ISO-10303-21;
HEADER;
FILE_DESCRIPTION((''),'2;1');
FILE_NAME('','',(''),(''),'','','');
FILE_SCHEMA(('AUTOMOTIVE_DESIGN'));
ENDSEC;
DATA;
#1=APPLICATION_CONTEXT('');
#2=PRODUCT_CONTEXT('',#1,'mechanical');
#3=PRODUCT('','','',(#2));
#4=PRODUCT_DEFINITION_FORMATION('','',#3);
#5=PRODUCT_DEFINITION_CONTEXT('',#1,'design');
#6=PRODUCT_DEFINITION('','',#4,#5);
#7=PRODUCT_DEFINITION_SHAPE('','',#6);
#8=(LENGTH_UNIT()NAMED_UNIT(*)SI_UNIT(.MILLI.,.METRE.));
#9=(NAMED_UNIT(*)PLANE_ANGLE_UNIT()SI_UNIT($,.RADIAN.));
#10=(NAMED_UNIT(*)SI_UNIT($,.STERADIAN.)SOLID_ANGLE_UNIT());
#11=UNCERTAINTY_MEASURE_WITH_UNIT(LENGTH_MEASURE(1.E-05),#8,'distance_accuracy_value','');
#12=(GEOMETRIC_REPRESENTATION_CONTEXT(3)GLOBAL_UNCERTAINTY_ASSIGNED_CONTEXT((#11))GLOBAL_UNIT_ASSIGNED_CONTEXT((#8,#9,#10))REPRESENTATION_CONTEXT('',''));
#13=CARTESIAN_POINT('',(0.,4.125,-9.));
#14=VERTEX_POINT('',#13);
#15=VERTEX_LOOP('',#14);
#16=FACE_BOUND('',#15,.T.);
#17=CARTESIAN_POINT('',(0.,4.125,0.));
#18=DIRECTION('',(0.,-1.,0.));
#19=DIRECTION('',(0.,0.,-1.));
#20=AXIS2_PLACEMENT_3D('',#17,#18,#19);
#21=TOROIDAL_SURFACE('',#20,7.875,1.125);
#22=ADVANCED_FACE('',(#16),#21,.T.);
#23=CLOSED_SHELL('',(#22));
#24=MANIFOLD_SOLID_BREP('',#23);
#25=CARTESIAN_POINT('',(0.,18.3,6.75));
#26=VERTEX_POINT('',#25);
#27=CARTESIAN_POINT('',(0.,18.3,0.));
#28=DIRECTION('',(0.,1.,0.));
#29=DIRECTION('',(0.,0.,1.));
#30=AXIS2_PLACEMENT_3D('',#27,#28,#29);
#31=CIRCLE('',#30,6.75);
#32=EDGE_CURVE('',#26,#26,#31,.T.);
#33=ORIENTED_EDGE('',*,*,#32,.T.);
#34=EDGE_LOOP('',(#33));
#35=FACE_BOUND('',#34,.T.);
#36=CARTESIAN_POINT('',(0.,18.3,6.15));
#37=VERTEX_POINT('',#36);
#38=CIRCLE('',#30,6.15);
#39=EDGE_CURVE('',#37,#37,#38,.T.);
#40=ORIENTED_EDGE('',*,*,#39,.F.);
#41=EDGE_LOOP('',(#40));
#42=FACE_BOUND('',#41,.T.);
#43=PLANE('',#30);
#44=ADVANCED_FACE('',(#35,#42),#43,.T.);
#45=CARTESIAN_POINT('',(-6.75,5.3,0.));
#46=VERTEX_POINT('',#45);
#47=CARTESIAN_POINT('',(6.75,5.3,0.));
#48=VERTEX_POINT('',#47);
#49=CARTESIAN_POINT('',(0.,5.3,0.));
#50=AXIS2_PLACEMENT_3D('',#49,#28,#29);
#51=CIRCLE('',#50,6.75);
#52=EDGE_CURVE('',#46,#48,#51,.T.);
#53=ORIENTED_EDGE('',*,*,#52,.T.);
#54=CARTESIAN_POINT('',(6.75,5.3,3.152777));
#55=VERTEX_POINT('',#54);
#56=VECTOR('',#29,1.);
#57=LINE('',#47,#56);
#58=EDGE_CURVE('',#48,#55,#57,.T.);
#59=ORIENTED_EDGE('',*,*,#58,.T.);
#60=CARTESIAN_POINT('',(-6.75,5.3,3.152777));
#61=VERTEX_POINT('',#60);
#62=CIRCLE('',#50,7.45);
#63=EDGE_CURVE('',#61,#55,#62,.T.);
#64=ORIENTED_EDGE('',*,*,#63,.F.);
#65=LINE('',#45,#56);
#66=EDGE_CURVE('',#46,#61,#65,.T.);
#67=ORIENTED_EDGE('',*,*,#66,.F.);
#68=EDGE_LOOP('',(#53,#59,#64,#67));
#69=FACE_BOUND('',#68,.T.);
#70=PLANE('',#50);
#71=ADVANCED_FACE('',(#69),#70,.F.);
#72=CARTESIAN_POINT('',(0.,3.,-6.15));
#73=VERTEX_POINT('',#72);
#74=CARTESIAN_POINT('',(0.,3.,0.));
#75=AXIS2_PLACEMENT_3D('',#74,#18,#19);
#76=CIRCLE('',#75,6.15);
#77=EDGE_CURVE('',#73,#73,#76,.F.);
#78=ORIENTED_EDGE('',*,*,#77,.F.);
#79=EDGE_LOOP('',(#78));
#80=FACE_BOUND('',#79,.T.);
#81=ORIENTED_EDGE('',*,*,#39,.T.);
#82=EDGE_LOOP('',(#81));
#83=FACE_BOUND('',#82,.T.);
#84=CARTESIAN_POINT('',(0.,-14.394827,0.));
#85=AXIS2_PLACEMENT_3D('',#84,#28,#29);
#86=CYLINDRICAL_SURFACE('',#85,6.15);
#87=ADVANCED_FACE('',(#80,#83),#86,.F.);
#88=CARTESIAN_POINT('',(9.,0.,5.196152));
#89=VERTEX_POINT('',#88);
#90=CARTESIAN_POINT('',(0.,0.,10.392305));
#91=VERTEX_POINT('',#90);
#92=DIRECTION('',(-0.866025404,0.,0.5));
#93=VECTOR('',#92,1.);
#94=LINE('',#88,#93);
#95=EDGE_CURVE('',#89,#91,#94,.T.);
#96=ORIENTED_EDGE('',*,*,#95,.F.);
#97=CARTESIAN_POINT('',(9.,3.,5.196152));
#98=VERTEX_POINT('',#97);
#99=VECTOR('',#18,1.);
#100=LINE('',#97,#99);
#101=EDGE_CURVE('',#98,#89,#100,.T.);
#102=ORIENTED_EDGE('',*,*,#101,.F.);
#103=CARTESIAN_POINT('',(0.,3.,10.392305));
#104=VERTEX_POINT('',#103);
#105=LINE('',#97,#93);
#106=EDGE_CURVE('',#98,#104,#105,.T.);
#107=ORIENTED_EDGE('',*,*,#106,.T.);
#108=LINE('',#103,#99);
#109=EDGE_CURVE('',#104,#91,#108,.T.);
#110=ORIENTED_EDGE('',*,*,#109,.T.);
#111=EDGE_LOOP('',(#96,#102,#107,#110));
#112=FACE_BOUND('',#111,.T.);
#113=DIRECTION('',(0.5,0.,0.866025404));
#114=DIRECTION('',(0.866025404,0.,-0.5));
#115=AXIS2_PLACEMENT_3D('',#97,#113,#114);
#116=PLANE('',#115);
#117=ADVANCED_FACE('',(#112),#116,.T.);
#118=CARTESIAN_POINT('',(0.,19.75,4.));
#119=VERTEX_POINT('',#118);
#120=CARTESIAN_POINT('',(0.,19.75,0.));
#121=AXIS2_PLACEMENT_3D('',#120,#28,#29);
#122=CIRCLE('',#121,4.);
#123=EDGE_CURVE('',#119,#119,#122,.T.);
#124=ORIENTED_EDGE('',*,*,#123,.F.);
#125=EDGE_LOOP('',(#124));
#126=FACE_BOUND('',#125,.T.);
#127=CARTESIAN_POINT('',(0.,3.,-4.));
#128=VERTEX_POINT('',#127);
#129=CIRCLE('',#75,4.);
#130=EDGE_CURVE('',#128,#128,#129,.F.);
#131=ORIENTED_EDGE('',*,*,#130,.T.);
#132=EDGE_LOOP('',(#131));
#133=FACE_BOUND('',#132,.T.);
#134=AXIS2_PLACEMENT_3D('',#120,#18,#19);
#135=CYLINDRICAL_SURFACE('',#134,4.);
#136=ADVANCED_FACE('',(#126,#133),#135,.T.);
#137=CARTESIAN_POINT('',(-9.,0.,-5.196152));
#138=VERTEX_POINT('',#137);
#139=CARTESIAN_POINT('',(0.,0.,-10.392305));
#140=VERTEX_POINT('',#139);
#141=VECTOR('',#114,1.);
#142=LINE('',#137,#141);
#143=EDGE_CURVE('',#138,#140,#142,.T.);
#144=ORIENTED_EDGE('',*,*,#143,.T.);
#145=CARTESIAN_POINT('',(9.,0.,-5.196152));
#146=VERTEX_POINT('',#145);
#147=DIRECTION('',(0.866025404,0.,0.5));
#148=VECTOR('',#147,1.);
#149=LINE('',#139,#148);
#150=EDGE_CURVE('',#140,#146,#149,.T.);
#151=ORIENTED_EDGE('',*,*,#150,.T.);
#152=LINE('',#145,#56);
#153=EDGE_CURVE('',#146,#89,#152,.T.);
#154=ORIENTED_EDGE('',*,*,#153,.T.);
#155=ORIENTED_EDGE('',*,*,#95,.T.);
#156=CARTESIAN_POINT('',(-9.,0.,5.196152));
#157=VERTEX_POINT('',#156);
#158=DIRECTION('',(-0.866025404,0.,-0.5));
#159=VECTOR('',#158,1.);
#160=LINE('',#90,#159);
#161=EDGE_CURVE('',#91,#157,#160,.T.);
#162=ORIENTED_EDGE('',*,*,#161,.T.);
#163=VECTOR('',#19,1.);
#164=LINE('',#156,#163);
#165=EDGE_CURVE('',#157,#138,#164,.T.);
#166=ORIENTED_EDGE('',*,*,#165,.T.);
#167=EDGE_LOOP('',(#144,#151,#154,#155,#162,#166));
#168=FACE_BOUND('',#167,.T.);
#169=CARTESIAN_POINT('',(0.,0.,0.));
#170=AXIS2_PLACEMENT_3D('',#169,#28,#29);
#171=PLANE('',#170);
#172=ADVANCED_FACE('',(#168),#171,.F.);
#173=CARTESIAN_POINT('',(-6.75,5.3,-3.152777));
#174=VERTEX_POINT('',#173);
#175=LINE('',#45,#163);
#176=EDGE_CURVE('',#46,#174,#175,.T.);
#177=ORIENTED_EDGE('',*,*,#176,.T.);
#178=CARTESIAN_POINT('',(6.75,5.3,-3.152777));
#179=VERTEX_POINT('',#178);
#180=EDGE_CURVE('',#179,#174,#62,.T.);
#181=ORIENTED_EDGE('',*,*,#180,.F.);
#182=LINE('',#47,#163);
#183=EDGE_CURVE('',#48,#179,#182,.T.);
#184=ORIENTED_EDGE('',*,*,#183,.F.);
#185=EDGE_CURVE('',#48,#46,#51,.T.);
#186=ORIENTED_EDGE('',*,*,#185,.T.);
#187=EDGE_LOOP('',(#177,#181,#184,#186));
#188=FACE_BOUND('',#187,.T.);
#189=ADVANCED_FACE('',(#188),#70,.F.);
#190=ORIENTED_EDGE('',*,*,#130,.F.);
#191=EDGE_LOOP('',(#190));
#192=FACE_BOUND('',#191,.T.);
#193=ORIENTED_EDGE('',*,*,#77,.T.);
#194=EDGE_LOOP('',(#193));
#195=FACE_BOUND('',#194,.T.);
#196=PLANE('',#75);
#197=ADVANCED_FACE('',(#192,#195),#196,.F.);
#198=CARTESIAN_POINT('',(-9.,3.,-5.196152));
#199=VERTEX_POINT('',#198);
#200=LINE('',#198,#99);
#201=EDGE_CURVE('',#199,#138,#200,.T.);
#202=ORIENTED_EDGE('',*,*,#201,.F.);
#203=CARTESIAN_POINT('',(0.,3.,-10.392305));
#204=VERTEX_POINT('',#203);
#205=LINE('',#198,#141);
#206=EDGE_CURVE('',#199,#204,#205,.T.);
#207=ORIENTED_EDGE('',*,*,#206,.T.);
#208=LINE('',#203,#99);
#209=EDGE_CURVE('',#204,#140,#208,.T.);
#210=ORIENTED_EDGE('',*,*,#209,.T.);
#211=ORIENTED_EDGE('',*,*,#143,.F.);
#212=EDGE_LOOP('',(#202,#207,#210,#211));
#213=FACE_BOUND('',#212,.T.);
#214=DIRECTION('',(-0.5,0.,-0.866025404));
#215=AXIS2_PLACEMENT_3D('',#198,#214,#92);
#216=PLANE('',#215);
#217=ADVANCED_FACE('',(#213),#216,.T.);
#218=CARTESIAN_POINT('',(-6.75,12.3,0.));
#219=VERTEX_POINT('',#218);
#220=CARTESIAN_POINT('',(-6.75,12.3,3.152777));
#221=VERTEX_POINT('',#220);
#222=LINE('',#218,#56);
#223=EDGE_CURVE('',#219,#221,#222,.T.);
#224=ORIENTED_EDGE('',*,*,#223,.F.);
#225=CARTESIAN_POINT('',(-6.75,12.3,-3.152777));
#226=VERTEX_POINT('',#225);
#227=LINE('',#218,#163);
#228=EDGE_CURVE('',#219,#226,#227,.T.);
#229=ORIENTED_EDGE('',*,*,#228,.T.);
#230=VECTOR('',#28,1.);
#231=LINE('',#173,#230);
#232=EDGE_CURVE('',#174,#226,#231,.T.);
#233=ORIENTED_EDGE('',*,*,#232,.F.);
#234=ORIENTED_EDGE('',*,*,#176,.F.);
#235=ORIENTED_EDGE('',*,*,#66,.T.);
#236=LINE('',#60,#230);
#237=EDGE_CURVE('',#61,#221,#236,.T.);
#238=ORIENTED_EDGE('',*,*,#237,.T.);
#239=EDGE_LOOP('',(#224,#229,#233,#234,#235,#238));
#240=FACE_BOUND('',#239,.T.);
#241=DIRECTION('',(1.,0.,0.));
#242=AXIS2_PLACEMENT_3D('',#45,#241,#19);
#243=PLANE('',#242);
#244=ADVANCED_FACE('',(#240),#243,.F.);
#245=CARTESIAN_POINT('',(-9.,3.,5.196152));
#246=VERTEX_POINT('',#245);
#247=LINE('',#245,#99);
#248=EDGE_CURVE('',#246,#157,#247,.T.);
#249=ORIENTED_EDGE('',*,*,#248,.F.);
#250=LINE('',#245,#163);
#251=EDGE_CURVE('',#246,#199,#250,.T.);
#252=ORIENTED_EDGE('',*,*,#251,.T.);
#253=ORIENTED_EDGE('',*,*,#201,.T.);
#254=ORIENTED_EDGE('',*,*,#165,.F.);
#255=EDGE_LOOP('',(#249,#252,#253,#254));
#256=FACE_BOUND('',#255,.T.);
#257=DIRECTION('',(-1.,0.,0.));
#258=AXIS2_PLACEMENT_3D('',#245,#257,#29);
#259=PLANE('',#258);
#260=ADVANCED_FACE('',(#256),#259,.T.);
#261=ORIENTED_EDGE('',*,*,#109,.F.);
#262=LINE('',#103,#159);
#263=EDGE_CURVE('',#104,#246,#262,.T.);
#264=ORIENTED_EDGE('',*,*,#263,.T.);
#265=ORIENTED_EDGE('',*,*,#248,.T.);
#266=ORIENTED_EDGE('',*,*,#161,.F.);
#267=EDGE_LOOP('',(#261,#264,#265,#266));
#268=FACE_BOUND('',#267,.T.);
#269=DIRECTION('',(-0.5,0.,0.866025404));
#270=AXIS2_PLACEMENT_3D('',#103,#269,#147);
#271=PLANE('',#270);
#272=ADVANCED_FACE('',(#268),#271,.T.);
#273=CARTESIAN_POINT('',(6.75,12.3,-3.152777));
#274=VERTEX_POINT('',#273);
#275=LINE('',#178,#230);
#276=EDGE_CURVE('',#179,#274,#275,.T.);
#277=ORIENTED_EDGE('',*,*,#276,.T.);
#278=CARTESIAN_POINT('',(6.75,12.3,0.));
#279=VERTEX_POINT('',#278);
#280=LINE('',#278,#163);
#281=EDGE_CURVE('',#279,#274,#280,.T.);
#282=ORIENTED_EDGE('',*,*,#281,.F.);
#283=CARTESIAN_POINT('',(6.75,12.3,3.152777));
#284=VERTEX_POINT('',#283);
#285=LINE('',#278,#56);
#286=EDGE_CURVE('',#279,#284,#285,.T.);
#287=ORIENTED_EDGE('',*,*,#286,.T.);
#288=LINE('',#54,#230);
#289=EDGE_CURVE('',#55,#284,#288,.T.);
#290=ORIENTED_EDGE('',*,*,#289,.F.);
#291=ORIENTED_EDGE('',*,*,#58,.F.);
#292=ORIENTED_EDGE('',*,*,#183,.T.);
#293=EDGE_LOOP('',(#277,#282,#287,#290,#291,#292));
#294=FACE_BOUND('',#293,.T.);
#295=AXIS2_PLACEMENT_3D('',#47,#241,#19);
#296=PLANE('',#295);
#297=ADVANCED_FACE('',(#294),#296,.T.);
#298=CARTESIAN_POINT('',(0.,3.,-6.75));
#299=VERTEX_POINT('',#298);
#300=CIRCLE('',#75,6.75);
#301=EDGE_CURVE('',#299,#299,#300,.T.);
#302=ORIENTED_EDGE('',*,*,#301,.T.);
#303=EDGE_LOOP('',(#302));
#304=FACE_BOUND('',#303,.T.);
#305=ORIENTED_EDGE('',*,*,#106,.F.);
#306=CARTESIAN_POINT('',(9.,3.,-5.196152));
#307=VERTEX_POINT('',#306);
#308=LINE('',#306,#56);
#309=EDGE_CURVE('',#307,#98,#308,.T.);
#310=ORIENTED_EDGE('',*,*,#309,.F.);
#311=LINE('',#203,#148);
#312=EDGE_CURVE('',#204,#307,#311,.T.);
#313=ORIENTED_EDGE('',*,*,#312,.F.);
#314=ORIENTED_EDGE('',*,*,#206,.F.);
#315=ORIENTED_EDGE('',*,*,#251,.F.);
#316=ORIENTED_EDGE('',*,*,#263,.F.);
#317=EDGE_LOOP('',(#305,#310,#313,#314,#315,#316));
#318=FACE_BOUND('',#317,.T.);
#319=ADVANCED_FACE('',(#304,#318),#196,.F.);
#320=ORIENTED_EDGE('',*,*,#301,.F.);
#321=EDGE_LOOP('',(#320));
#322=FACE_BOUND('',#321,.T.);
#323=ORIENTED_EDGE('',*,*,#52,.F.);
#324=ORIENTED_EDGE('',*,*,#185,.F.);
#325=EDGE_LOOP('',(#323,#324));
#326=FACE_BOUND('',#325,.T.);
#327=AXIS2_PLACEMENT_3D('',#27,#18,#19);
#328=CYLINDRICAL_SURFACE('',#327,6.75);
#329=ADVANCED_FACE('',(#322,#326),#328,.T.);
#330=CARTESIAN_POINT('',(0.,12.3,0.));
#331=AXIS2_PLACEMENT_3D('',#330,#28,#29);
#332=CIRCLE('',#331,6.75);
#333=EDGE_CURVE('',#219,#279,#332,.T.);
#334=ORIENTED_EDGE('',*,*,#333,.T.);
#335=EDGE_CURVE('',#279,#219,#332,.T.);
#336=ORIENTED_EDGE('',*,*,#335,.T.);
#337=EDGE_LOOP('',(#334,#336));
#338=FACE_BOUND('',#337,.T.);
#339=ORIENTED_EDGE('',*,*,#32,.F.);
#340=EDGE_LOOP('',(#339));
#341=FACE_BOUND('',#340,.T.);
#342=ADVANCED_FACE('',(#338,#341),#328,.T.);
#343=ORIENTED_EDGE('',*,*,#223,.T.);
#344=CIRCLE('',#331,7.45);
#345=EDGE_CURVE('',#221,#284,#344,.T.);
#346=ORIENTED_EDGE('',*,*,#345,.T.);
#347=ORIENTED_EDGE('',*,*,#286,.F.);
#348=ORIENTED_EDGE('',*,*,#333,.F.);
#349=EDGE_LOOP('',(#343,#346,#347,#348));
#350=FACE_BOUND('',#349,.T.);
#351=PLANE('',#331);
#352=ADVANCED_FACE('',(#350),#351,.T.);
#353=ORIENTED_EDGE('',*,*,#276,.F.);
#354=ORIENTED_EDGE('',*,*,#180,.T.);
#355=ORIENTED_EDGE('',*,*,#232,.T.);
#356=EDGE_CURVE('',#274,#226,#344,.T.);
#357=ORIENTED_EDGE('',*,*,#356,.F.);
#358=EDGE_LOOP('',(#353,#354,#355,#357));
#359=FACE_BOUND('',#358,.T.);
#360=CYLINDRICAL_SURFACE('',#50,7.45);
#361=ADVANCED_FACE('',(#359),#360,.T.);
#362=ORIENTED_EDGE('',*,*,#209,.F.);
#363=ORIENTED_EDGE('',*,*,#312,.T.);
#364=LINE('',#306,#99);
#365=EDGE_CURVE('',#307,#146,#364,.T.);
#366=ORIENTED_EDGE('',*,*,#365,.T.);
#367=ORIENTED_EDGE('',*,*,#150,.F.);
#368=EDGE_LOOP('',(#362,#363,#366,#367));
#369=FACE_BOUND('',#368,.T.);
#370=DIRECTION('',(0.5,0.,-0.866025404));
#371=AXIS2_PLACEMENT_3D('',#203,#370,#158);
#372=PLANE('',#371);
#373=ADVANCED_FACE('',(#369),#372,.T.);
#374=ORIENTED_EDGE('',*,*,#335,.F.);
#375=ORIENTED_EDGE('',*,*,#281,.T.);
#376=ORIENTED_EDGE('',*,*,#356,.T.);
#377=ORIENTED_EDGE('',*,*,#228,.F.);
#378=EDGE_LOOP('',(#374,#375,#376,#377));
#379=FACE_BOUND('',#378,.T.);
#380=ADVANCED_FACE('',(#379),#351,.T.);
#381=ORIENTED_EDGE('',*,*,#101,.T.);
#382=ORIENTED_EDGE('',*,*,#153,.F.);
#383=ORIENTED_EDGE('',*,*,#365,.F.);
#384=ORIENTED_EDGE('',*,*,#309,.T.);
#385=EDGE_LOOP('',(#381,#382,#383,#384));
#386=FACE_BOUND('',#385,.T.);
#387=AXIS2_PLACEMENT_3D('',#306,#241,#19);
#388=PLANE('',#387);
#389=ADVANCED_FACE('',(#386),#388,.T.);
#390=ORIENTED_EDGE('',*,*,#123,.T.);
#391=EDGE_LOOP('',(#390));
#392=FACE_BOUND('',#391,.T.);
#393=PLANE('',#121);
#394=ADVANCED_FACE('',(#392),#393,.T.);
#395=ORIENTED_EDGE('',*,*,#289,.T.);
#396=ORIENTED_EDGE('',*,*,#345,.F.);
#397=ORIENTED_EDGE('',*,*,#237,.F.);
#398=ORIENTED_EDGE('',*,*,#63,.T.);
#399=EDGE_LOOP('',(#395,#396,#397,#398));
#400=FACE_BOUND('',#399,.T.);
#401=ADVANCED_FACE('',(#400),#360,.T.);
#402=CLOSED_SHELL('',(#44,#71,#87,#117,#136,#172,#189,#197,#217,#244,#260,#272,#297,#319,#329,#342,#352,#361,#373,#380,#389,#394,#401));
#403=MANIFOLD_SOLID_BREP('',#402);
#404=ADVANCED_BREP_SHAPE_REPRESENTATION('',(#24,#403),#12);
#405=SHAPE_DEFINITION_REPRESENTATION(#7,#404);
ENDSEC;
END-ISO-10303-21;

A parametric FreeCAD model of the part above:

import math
import FreeCAD as App
import Part
import Sketcher

V = App.Vector
Q = App.Units.Quantity

doc = App.newDocument("Part")
body = doc.addObject("PartDesign::Body", "Body")

sketch1 = doc.addObject("Sketcher::SketchObject", "Sketch")
body.addObject(sketch1)
sketch1.AttachmentSupport = (doc.XZ_Plane, [""])
sketch1.MapMode = "FlatFace"
sketch1.addGeometry(Part.Circle(V(0, 0, 0), V(0, 0, 1), 7), False)
sketch1.addConstraint(Sketcher.Constraint("Coincident", 0, 3, -1, 1))
sketch1.addConstraint(Sketcher.Constraint("Diameter", 0, Q("13.5 mm")))
pad1 = doc.addObject("PartDesign::Pad", "Pad")
body.addObject(pad1)
pad1.Profile = sketch1
pad1.Length = 18.3
pad1.Reversed = True

sketch2 = doc.addObject("Sketcher::SketchObject", "Sketch001")
body.addObject(sketch2)
sketch2.AttachmentSupport = (doc.XZ_Plane, [""])
sketch2.MapMode = "FlatFace"
sketch2.addGeometry(Part.LineSegment(V(0, 10, 0), V(-9, 5, 0)), False)
sketch2.addGeometry(Part.LineSegment(V(-9, 5, 0), V(-9, -5, 0)), False)
sketch2.addGeometry(Part.LineSegment(V(-9, -5, 0), V(0, -10, 0)), False)
sketch2.addGeometry(Part.LineSegment(V(0, -10, 0), V(9, -5, 0)), False)
sketch2.addGeometry(Part.LineSegment(V(9, -5, 0), V(9, 5, 0)), False)
sketch2.addGeometry(Part.LineSegment(V(9, 5, 0), V(0, 10, 0)), False)
sketch2.addConstraint(Sketcher.Constraint("Coincident", 0, 2, 1, 1))
sketch2.addConstraint(Sketcher.Constraint("Coincident", 1, 2, 2, 1))
sketch2.addConstraint(Sketcher.Constraint("Coincident", 2, 2, 3, 1))
sketch2.addConstraint(Sketcher.Constraint("Coincident", 3, 2, 4, 1))
sketch2.addConstraint(Sketcher.Constraint("Coincident", 4, 2, 5, 1))
sketch2.addConstraint(Sketcher.Constraint("Coincident", 5, 2, 0, 1))
sketch2.addConstraint(Sketcher.Constraint("Vertical", 1))
sketch2.addConstraint(Sketcher.Constraint("Vertical", 4))
sketch2.addConstraint(Sketcher.Constraint("Symmetric", 0, 2, 3, 2, -1, 1))
sketch2.addConstraint(Sketcher.Constraint("Symmetric", 2, 2, 5, 2, -1, 1))
sketch2.addConstraint(Sketcher.Constraint("PointOnObject", 2, 2, -2))
sketch2.addConstraint(Sketcher.Constraint("Parallel", 2, 5))
sketch2.addConstraint(Sketcher.Constraint("Horizontal", 1, 2, 3, 2))
sketch2.addConstraint(Sketcher.Constraint("Angle", 0, Q("-150 deg")))
sketch2.addConstraint(Sketcher.Constraint("DistanceX", 0, 2, -1, 1, Q("9 mm")))
sketch2.addConstraint(Sketcher.Constraint("DistanceY", 1, 2, 1, 1, Q("10.392305 mm")))
pad2 = doc.addObject("PartDesign::Pad", "Pad001")
body.addObject(pad2)
pad2.Profile = sketch2
pad2.Length = 3
pad2.Reversed = True

sketch3 = doc.addObject("Sketcher::SketchObject", "Sketch002")
body.addObject(sketch3)
sketch3.AttachmentSupport = (doc.XZ_Plane, [""])
sketch3.MapMode = "FlatFace"
sketch3.AttachmentOffset = App.Placement(V(0, 0, -18.3), App.Rotation())
sketch3.addGeometry(Part.Circle(V(0, 0, 0), V(0, 0, 1), 6), False)
sketch3.addConstraint(Sketcher.Constraint("Coincident", 0, 3, -1, 1))
sketch3.addConstraint(Sketcher.Constraint("Diameter", 0, Q("12.3 mm")))
pocket1 = doc.addObject("PartDesign::Pocket", "Pocket")
body.addObject(pocket1)
pocket1.Profile = sketch3
pocket1.Length = 15.3
pocket1.Reversed = True

sketch4 = doc.addObject("Sketcher::SketchObject", "Sketch003")
body.addObject(sketch4)
sketch4.AttachmentSupport = (doc.XZ_Plane, [""])
sketch4.MapMode = "FlatFace"
sketch4.AttachmentOffset = App.Placement(V(0, 0, -3), App.Rotation())
sketch4.addGeometry(Part.Circle(V(0, 0, 0), V(0, 0, 1), 4), False)
sketch4.addConstraint(Sketcher.Constraint("Coincident", 0, 3, -1, 1))
sketch4.addConstraint(Sketcher.Constraint("Diameter", 0, Q("8 mm")))
pad3 = doc.addObject("PartDesign::Pad", "Pad002")
body.addObject(pad3)
pad3.Profile = sketch4
pad3.Length = 16.75
pad3.Reversed = True

sketch5 = doc.addObject("Sketcher::SketchObject", "Sketch004")
body.addObject(sketch5)
sketch5.AttachmentSupport = (doc.XZ_Plane, [""])
sketch5.MapMode = "FlatFace"
sketch5.AttachmentOffset = App.Placement(V(0, 0, -5.3), App.Rotation())
sketch5.addGeometry(Part.LineSegment(V(-6.8, -3.2, 0), V(-6.8, 0, 0)), False)
sketch5.addGeometry(Part.ArcOfCircle(Part.Circle(V(0, 0, 0), V(0, 0, 1), 6.8), math.radians(180), math.radians(360)), False)
sketch5.addGeometry(Part.LineSegment(V(6.8, 0, 0), V(6.8, -3.2, 0)), False)
sketch5.addGeometry(Part.ArcOfCircle(Part.Circle(V(0, 0, 0), V(0, 0, 1), 7.5), math.radians(-155), math.radians(-25)), False)
sketch5.addGeometry(Part.ArcOfCircle(Part.Circle(V(0, 0, 0), V(0, 0, 1), 6.8), math.radians(0), math.radians(180)), False)
sketch5.addGeometry(Part.LineSegment(V(-6.8, 0, 0), V(-6.8, 3.2, 0)), False)
sketch5.addGeometry(Part.ArcOfCircle(Part.Circle(V(0, 0, 0), V(0, 0, 1), 7.5), math.radians(25), math.radians(155)), False)
sketch5.addGeometry(Part.LineSegment(V(6.8, 3.2, 0), V(6.8, 0, 0)), False)
sketch5.addConstraint(Sketcher.Constraint("Tangent", 0, 2, 1, 1))
sketch5.addConstraint(Sketcher.Constraint("Tangent", 1, 2, 2, 1))
sketch5.addConstraint(Sketcher.Constraint("Coincident", 2, 2, 3, 2))
sketch5.addConstraint(Sketcher.Constraint("Coincident", 3, 1, 0, 1))
sketch5.addConstraint(Sketcher.Constraint("Tangent", 4, 2, 5, 1))
sketch5.addConstraint(Sketcher.Constraint("Coincident", 5, 2, 6, 2))
sketch5.addConstraint(Sketcher.Constraint("Coincident", 6, 1, 7, 1))
sketch5.addConstraint(Sketcher.Constraint("Tangent", 7, 2, 4, 1))
sketch5.addConstraint(Sketcher.Constraint("Vertical", 0))
sketch5.addConstraint(Sketcher.Constraint("Vertical", 2))
sketch5.addConstraint(Sketcher.Constraint("Vertical", 5))
sketch5.addConstraint(Sketcher.Constraint("Vertical", 7))
sketch5.addConstraint(Sketcher.Constraint("Coincident", 1, 3, -1, 1))
sketch5.addConstraint(Sketcher.Constraint("Coincident", 3, 3, -1, 1))
sketch5.addConstraint(Sketcher.Constraint("Coincident", 4, 3, -1, 1))
sketch5.addConstraint(Sketcher.Constraint("Coincident", 6, 3, -1, 1))
sketch5.addConstraint(Sketcher.Constraint("Equal", 1, 4))
sketch5.addConstraint(Sketcher.Constraint("Equal", 3, 6))
sketch5.addConstraint(Sketcher.Constraint("Radius", 1, Q("6.75 mm")))
sketch5.addConstraint(Sketcher.Constraint("Radius", 3, Q("7.45 mm")))
pad4 = doc.addObject("PartDesign::Pad", "Pad003")
body.addObject(pad4)
pad4.Profile = sketch5
pad4.Length = 7
pad4.Reversed = True
body2 = doc.addObject("PartDesign::Body", "Body001")

sketch6 = doc.addObject("Sketcher::SketchObject", "Sketch005")
body2.addObject(sketch6)
sketch6.AttachmentSupport = (doc.getObject("XY_Plane001"), [""])
sketch6.MapMode = "FlatFace"
sketch6.addGeometry(Part.Circle(V(-7.9, 4.1, 0), V(0, 0, 1), 1.1), False)
sketch6.addConstraint(Sketcher.Constraint("Diameter", 0, Q("2.25 mm")))
sketch6.addConstraint(Sketcher.Constraint("DistanceX", 0, 3, -1, 1, Q("7.875 mm")))
sketch6.addConstraint(Sketcher.Constraint("DistanceY", -1, 1, 0, 3, Q("4.125 mm")))
revolution = doc.addObject("PartDesign::Revolution", "Revolution")
body2.addObject(revolution)
revolution.Profile = sketch6
revolution.ReferenceAxis = (sketch6, ["V_Axis"])
revolution.Angle = 360

doc.recompute()
